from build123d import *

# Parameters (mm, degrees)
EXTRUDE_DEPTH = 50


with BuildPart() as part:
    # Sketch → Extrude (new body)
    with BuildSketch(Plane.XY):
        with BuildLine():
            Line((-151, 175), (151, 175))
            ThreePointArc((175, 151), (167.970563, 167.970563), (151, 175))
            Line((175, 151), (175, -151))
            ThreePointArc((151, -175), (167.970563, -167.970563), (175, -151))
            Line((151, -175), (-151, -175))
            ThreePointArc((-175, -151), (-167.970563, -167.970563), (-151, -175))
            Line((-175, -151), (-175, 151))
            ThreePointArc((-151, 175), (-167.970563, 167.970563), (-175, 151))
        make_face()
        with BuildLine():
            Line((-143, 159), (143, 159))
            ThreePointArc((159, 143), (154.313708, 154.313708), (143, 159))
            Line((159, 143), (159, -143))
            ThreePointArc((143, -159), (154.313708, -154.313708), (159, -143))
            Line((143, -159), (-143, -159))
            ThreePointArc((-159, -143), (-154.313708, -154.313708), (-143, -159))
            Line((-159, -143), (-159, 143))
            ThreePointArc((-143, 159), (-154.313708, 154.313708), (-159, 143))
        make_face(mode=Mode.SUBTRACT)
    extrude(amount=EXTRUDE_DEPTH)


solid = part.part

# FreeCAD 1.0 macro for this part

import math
import FreeCAD as App
import Part
import Sketcher
Q = App.Units.Quantity

doc = App.newDocument("Part")
params = doc.addObject("Spreadsheet::Sheet", "Params")
for row, (alias, value) in enumerate([
    ("sketch1_radius", "23.999999 mm"),
    ("sketch1_radius2", "16.000002 mm"),
    ("sketch1_width", "302 mm"),
    ("sketch1_width2", "286 mm"),
    ("pad1_length", "50 mm"),
], start=1):
    params.set(f"A{row}", alias)
    params.set(f"B{row}", "=" + value)
    params.setAlias(f"B{row}", alias)

body = doc.addObject("PartDesign::Body", "Body")

sketch1 = body.newObject("Sketcher::SketchObject", "Sketch")
sketch1.AttachmentSupport = (doc.getObject("XY_Plane"), [""])
sketch1.MapMode = "FlatFace"
sketch1.addGeometry(Part.LineSegment(App.Vector(151, 175, 0), App.Vector(-151, 175, 0)), False)
sketch1.addGeometry(Part.ArcOfCircle(Part.Circle(App.Vector(-151, 151, 0), App.Vector(0, 0, 1), 24), math.radians(90), math.radians(180)), False)
sketch1.addGeometry(Part.LineSegment(App.Vector(-175, 151, 0), App.Vector(-175, -151, 0)), False)
sketch1.addGeometry(Part.ArcOfCircle(Part.Circle(App.Vector(-151, -151, 0), App.Vector(0, 0, 1), 24), math.radians(180), math.radians(270)), False)
sketch1.addGeometry(Part.LineSegment(App.Vector(-151, -175, 0), App.Vector(151, -175, 0)), False)
sketch1.addGeometry(Part.ArcOfCircle(Part.Circle(App.Vector(151, -151, 0), App.Vector(0, 0, 1), 24), math.radians(-90), math.radians(0)), False)
sketch1.addGeometry(Part.LineSegment(App.Vector(175, -151, 0), App.Vector(175, 151, 0)), False)
sketch1.addGeometry(Part.ArcOfCircle(Part.Circle(App.Vector(151, 151, 0), App.Vector(0, 0, 1), 24), math.radians(0), math.radians(90)), False)
sketch1.addGeometry(Part.LineSegment(App.Vector(-143, 159, 0), App.Vector(143, 159, 0)), False)
sketch1.addGeometry(Part.ArcOfCircle(Part.Circle(App.Vector(143, 143, 0), App.Vector(0, 0, 1), 16), math.radians(0), math.radians(90)), False)
sketch1.addGeometry(Part.LineSegment(App.Vector(159, 143, 0), App.Vector(159, -143, 0)), False)
sketch1.addGeometry(Part.ArcOfCircle(Part.Circle(App.Vector(143, -143, 0), App.Vector(0, 0, 1), 16), math.radians(-90), math.radians(0)), False)
sketch1.addGeometry(Part.LineSegment(App.Vector(143, -159, 0), App.Vector(-143, -159, 0)), False)
sketch1.addGeometry(Part.ArcOfCircle(Part.Circle(App.Vector(-143, -143, 0), App.Vector(0, 0, 1), 16), math.radians(-180), math.radians(-90)), False)
sketch1.addGeometry(Part.LineSegment(App.Vector(-159, -143, 0), App.Vector(-159, 143, 0)), False)
sketch1.addGeometry(Part.ArcOfCircle(Part.Circle(App.Vector(-143, 143, 0), App.Vector(0, 0, 1), 16), math.radians(90), math.radians(180)), False)
sketch1.addConstraint(Sketcher.Constraint("Tangent", 0, 2, 1, 1))
sketch1.addConstraint(Sketcher.Constraint("Tangent", 1, 2, 2, 1))
sketch1.addConstraint(Sketcher.Constraint("Tangent", 2, 2, 3, 1))
sketch1.addConstraint(Sketcher.Constraint("Tangent", 3, 2, 4, 1))
sketch1.addConstraint(Sketcher.Constraint("Tangent", 4, 2, 5, 1))
sketch1.addConstraint(Sketcher.Constraint("Tangent", 5, 2, 6, 1))
sketch1.addConstraint(Sketcher.Constraint("Tangent", 6, 2, 7, 1))
sketch1.addConstraint(Sketcher.Constraint("Tangent", 7, 2, 0, 1))
sketch1.addConstraint(Sketcher.Constraint("Tangent", 8, 2, 9, 2))
sketch1.addConstraint(Sketcher.Constraint("Tangent", 9, 1, 10, 1))
sketch1.addConstraint(Sketcher.Constraint("Tangent", 10, 2, 11, 2))
sketch1.addConstraint(Sketcher.Constraint("Tangent", 11, 1, 12, 1))
sketch1.addConstraint(Sketcher.Constraint("Tangent", 12, 2, 13, 2))
sketch1.addConstraint(Sketcher.Constraint("Tangent", 13, 1, 14, 1))
sketch1.addConstraint(Sketcher.Constraint("Tangent", 14, 2, 15, 2))
sketch1.addConstraint(Sketcher.Constraint("Tangent", 15, 1, 8, 1))
sketch1.addConstraint(Sketcher.Constraint("Horizontal", 0))
sketch1.addConstraint(Sketcher.Constraint("Vertical", 2))
sketch1.addConstraint(Sketcher.Constraint("Horizontal", 4))
sketch1.addConstraint(Sketcher.Constraint("Vertical", 6))
sketch1.addConstraint(Sketcher.Constraint("Horizontal", 8))
sketch1.addConstraint(Sketcher.Constraint("Vertical", 10))
sketch1.addConstraint(Sketcher.Constraint("Horizontal", 12))
sketch1.addConstraint(Sketcher.Constraint("Vertical", 14))
sketch1.addConstraint(Sketcher.Constraint("Equal", 1, 3))
sketch1.addConstraint(Sketcher.Constraint("Equal", 3, 5))
sketch1.addConstraint(Sketcher.Constraint("Equal", 5, 7))
sketch1.addConstraint(Sketcher.Constraint("Equal", 9, 11))
sketch1.addConstraint(Sketcher.Constraint("Equal", 11, 13))
sketch1.addConstraint(Sketcher.Constraint("Equal", 13, 15))
sketch1.addConstraint(Sketcher.Constraint("Symmetric", 1, 3, 5, 3, -1, 1))
sketch1.addConstraint(Sketcher.Constraint("Symmetric", 9, 3, 13, 3, -1, 1))
sketch1.addConstraint(Sketcher.Constraint("Equal", 4, 2))
sketch1.addConstraint(Sketcher.Constraint("Equal", 12, 10))
sketch1.addConstraint(Sketcher.Constraint("Radius", 1, Q("23.999999 mm")))
sketch1.addConstraint(Sketcher.Constraint("Radius", 9, Q("16.000002 mm")))
sketch1.addConstraint(Sketcher.Constraint("DistanceX", 0, 2, 0, 1, Q("302 mm")))
sketch1.addConstraint(Sketcher.Constraint("DistanceX", 8, 1, 8, 2, Q("286 mm")))
sketch1.setExpression("Constraints[34]", "Params.sketch1_radius")
sketch1.setExpression("Constraints[35]", "Params.sketch1_radius2")
sketch1.setExpression("Constraints[36]", "Params.sketch1_width")
sketch1.setExpression("Constraints[37]", "Params.sketch1_width2")
pad1 = body.newObject("PartDesign::Pad", "Pad")
pad1.Profile = sketch1
pad1.setExpression("Length", "Params.pad1_length")

doc.recompute()
